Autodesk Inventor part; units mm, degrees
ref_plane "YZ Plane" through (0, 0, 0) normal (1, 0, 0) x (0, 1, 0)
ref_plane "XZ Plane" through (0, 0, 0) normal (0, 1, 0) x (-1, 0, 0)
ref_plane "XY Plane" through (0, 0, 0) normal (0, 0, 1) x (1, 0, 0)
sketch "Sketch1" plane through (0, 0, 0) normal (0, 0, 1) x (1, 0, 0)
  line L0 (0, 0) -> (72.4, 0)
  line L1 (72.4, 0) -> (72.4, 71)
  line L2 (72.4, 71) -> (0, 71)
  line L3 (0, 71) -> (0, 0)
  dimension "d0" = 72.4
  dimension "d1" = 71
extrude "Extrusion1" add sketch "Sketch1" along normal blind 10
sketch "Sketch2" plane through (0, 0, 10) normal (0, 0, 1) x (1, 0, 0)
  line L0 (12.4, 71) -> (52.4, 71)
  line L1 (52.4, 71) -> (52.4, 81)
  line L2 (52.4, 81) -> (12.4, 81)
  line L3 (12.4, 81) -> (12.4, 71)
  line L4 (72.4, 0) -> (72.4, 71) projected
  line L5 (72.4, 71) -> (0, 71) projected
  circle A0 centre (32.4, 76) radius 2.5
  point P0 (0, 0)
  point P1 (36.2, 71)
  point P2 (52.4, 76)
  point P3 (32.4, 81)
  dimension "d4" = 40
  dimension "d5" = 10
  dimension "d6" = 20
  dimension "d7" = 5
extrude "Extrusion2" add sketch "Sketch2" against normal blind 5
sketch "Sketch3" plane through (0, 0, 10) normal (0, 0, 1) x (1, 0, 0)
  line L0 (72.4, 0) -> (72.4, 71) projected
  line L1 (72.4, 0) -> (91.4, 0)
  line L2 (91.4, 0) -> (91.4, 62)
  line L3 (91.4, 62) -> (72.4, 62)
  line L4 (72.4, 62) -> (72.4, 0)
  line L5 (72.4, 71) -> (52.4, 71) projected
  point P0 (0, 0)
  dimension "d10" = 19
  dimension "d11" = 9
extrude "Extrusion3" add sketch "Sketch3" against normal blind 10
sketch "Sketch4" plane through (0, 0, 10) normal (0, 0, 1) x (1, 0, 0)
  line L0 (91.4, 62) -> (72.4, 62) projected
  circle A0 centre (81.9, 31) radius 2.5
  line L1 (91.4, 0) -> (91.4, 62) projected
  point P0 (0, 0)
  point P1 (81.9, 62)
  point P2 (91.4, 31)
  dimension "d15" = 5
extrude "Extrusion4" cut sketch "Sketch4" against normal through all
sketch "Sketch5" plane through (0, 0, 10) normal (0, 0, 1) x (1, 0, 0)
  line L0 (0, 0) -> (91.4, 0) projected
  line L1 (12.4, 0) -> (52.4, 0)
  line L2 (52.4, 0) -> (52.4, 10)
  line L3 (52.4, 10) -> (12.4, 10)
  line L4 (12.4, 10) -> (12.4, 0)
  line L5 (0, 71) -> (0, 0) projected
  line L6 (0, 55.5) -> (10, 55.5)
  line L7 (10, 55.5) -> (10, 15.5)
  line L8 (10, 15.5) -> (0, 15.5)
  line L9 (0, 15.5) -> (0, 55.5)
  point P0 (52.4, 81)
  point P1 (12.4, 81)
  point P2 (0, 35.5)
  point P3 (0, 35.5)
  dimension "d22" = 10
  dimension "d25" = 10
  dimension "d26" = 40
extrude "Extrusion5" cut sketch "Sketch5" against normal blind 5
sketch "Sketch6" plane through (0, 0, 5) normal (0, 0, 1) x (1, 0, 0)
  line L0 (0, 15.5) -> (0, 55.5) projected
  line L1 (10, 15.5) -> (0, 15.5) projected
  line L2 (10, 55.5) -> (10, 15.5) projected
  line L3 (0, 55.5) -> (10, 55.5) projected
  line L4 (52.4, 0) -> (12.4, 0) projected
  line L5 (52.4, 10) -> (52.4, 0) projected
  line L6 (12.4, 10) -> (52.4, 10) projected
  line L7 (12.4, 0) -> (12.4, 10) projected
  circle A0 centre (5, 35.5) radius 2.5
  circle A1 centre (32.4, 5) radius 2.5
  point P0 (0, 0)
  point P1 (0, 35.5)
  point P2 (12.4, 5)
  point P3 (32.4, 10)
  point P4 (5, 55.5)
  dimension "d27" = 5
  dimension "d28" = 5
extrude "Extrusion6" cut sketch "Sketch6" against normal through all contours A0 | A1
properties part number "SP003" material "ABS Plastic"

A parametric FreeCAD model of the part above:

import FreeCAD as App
import Part
import Sketcher
Q = App.Units.Quantity


def add_polygon(sketch, points):
    """Adds a closed chain of lines whose ends are joined by coincident constraints."""
    first, n = sketch.GeometryCount, len(points)
    for a, b in zip(points, points[1:] + points[:1]):
        sketch.addGeometry(Part.LineSegment(App.Vector(*a, 0), App.Vector(*b, 0)), False)
    for i in range(n):
        sketch.addConstraint(Sketcher.Constraint("Coincident", first + i, 2, first + (i + 1) % n, 1))

doc = App.newDocument("Part")
params = doc.addObject("Spreadsheet::Sheet", "Params")
for row, (alias, value) in enumerate([
    ("sketch1_height", "71 mm"),
    ("sketch1_width", "72.4 mm"),
    ("pad1_length", "10 mm"),
    ("sketch2_diameter", "5 mm"),
    ("sketch2_width", "40 mm"),
    ("sketch2_height", "10 mm"),
    ("pad2_length", "5 mm"),
    ("sketch3_width", "19 mm"),
    ("sketch3_height", "62 mm"),
    ("pad3_length", "10 mm"),
    ("sketch4_diameter", "5 mm"),
    ("sketch5_width", "40 mm"),
    ("sketch5_width2", "10 mm"),
    ("pocket2_length", "5 mm"),
    ("sketch6_diameter", "5 mm"),
], start=1):
    params.set(f"A{row}", alias)
    params.set(f"B{row}", "=" + value)
    params.setAlias(f"B{row}", alias)

body = doc.addObject("PartDesign::Body", "Body")

sketch1 = body.newObject("Sketcher::SketchObject", "Sketch")
sketch1.AttachmentSupport = (doc.getObject("XY_Plane"), [""])
sketch1.MapMode = "FlatFace"
add_polygon(sketch1, [(0, 71), (0, 0), (72, 0), (72, 71)])
sketch1.addConstraint([
    Sketcher.Constraint("Vertical", 0),
    Sketcher.Constraint("Horizontal", 1),
    Sketcher.Constraint("Vertical", 2),
    Sketcher.Constraint("Horizontal", 3),
    Sketcher.Constraint("Coincident", 0, 2, -1, 1),
    Sketcher.Constraint("DistanceY", 0, 2, 0, 1, Q("71 mm")),
    Sketcher.Constraint("DistanceX", 1, 1, 1, 2, Q("72.4 mm")),
])
sketch1.setExpression("Constraints[9]", "Params.sketch1_height")
sketch1.setExpression("Constraints[10]", "Params.sketch1_width")
pad1 = body.newObject("PartDesign::Pad", "Pad")
pad1.Profile = sketch1
pad1.setExpression("Length", "Params.pad1_length")

sketch2 = body.newObject("Sketcher::SketchObject", "Sketch001")
sketch2.AttachmentSupport = (doc.getObject("XY_Plane"), [""])
sketch2.MapMode = "FlatFace"
sketch2.AttachmentOffset = App.Placement(App.Vector(0, 0, 10), App.Rotation())
add_polygon(sketch2, [(12.4, 81), (12.4, 71), (52.4, 71), (52.4, 81)])
sketch2.addGeometry(Part.Circle(App.Vector(32.4, 76, 0), App.Vector(0, 0, 1), 2.5), False)
sketch2.addConstraint([
    Sketcher.Constraint("Vertical", 0),
    Sketcher.Constraint("Horizontal", 1),
    Sketcher.Constraint("Vertical", 2),
    Sketcher.Constraint("Horizontal", 3),
    Sketcher.Constraint("Diameter", 4, Q("5 mm")),
    Sketcher.Constraint("DistanceX", 1, 1, 1, 2, Q("40 mm")),
    Sketcher.Constraint("DistanceY", 0, 2, 0, 1, Q("10 mm")),
    Sketcher.Constraint("DistanceX", 0, 2, 4, 3, Q("20 mm")),
    Sketcher.Constraint("DistanceY", 0, 2, 4, 3, Q("5 mm")),
    Sketcher.Constraint("DistanceY", -1, 1, 4, 3, Q("76 mm")),
    Sketcher.Constraint("DistanceX", -1, 1, 4, 3, Q("32.4 mm")),
])
sketch2.setExpression("Constraints[8]", "Params.sketch2_diameter")
sketch2.setExpression("Constraints[9]", "Params.sketch2_width")
sketch2.setExpression("Constraints[10]", "Params.sketch2_height")
pad2 = body.newObject("PartDesign::Pad", "Pad001")
pad2.Profile = sketch2
pad2.setExpression("Length", "Params.pad2_length")
pad2.Reversed = True

sketch3 = body.newObject("Sketcher::SketchObject", "Sketch002")
sketch3.AttachmentSupport = (doc.getObject("XY_Plane"), [""])
sketch3.MapMode = "FlatFace"
sketch3.AttachmentOffset = App.Placement(App.Vector(0, 0, 10), App.Rotation())
add_polygon(sketch3, [(72, 62), (72, 0), (91, 0), (91, 62)])
sketch3.addConstraint([
    Sketcher.Constraint("Vertical", 0),
    Sketcher.Constraint("Horizontal", 1),
    Sketcher.Constraint("Vertical", 2),
    Sketcher.Constraint("Horizontal", 3),
    Sketcher.Constraint("PointOnObject", 0, 2, -1),
    Sketcher.Constraint("DistanceX", 1, 1, 1, 2, Q("19 mm")),
    Sketcher.Constraint("DistanceY", 0, 2, 0, 1, Q("62 mm")),
    Sketcher.Constraint("DistanceX", -1, 1, 0, 2, Q("72.4 mm")),
])
sketch3.setExpression("Constraints[9]", "Params.sketch3_width")
sketch3.setExpression("Constraints[10]", "Params.sketch3_height")
pad3 = body.newObject("PartDesign::Pad", "Pad002")
pad3.Profile = sketch3
pad3.setExpression("Length", "Params.pad3_length")
pad3.Reversed = True

sketch4 = body.newObject("Sketcher::SketchObject", "Sketch003")
sketch4.AttachmentSupport = (doc.getObject("XY_Plane"), [""])
sketch4.MapMode = "FlatFace"
sketch4.AttachmentOffset = App.Placement(App.Vector(0, 0, 10), App.Rotation())
sketch4.addGeometry(Part.Circle(App.Vector(81.9, 31, 0), App.Vector(0, 0, 1), 2.5), False)
sketch4.addConstraint([
    Sketcher.Constraint("Diameter", 0, Q("5 mm")),
    Sketcher.Constraint("DistanceY", -1, 1, 0, 3, Q("31 mm")),
    Sketcher.Constraint("DistanceX", -1, 1, 0, 3, Q("81.9 mm")),
])
sketch4.setExpression("Constraints[0]", "Params.sketch4_diameter")
pocket1 = body.newObject("PartDesign::Pocket", "Pocket")
pocket1.Profile = sketch4
pocket1.Type = "ThroughAll"

sketch5 = body.newObject("Sketcher::SketchObject", "Sketch004")
sketch5.AttachmentSupport = (doc.getObject("XY_Plane"), [""])
sketch5.MapMode = "FlatFace"
sketch5.AttachmentOffset = App.Placement(App.Vector(0, 0, 10), App.Rotation())
add_polygon(sketch5, [(12, 10), (12, 0), (52, 0), (52, 10)])
add_polygon(sketch5, [(0, 56), (0, 16), (10, 16), (10, 56)])
sketch5.addConstraint([
    Sketcher.Constraint("Vertical", 0),
    Sketcher.Constraint("Horizontal", 1),
    Sketcher.Constraint("Vertical", 2),
    Sketcher.Constraint("Horizontal", 3),
    Sketcher.Constraint("Vertical", 4),
    Sketcher.Constraint("Horizontal", 5),
    Sketcher.Constraint("Vertical", 6),
    Sketcher.Constraint("Horizontal", 7),
    Sketcher.Constraint("PointOnObject", 0, 2, -1),
    Sketcher.Constraint("PointOnObject", 4, 2, -2),
    Sketcher.Constraint("Equal", 7, 0),
    Sketcher.Constraint("Equal", 3, 4),
    Sketcher.Constraint("DistanceX", 1, 1, 1, 2, Q("40 mm")),
    Sketcher.Constraint("DistanceX", 5, 1, 5, 2, Q("10 mm")),
    Sketcher.Constraint("DistanceX", -1, 1, 0, 2, Q("12.4 mm")),
    Sketcher.Constraint("DistanceY", -1, 1, 4, 2, Q("15.5 mm")),
])
sketch5.setExpression("Constraints[20]", "Params.sketch5_width")
sketch5.setExpression("Constraints[21]", "Params.sketch5_width2")
pocket2 = body.newObject("PartDesign::Pocket", "Pocket001")
pocket2.Profile = sketch5
pocket2.setExpression("Length", "Params.pocket2_length")

sketch6 = body.newObject("Sketcher::SketchObject", "Sketch005")
sketch6.AttachmentSupport = (doc.getObject("XY_Plane"), [""])
sketch6.MapMode = "FlatFace"
sketch6.AttachmentOffset = App.Placement(App.Vector(0, 0, 5), App.Rotation())
sketch6.addGeometry([
    Part.Circle(App.Vector(5, 35.5, 0), App.Vector(0, 0, 1), 2.5),
    Part.Circle(App.Vector(32.4, 5, 0), App.Vector(0, 0, 1), 2.5),
], False)
sketch6.addConstraint([
    Sketcher.Constraint("Equal", 0, 1),
    Sketcher.Constraint("Diameter", 0, Q("5 mm")),
    Sketcher.Constraint("DistanceX", -1, 1, 0, 3, Q("5 mm")),
    Sketcher.Constraint("DistanceY", -1, 1, 1, 3, Q("5 mm")),
    Sketcher.Constraint("DistanceY", -1, 1, 0, 3, Q("35.5 mm")),
    Sketcher.Constraint("DistanceX", -1, 1, 1, 3, Q("32.4 mm")),
])
sketch6.setExpression("Constraints[1]", "Params.sketch6_diameter")
pocket3 = body.newObject("PartDesign::Pocket", "Pocket002")
pocket3.Profile = sketch6
pocket3.Type = "ThroughAll"

doc.recompute()
